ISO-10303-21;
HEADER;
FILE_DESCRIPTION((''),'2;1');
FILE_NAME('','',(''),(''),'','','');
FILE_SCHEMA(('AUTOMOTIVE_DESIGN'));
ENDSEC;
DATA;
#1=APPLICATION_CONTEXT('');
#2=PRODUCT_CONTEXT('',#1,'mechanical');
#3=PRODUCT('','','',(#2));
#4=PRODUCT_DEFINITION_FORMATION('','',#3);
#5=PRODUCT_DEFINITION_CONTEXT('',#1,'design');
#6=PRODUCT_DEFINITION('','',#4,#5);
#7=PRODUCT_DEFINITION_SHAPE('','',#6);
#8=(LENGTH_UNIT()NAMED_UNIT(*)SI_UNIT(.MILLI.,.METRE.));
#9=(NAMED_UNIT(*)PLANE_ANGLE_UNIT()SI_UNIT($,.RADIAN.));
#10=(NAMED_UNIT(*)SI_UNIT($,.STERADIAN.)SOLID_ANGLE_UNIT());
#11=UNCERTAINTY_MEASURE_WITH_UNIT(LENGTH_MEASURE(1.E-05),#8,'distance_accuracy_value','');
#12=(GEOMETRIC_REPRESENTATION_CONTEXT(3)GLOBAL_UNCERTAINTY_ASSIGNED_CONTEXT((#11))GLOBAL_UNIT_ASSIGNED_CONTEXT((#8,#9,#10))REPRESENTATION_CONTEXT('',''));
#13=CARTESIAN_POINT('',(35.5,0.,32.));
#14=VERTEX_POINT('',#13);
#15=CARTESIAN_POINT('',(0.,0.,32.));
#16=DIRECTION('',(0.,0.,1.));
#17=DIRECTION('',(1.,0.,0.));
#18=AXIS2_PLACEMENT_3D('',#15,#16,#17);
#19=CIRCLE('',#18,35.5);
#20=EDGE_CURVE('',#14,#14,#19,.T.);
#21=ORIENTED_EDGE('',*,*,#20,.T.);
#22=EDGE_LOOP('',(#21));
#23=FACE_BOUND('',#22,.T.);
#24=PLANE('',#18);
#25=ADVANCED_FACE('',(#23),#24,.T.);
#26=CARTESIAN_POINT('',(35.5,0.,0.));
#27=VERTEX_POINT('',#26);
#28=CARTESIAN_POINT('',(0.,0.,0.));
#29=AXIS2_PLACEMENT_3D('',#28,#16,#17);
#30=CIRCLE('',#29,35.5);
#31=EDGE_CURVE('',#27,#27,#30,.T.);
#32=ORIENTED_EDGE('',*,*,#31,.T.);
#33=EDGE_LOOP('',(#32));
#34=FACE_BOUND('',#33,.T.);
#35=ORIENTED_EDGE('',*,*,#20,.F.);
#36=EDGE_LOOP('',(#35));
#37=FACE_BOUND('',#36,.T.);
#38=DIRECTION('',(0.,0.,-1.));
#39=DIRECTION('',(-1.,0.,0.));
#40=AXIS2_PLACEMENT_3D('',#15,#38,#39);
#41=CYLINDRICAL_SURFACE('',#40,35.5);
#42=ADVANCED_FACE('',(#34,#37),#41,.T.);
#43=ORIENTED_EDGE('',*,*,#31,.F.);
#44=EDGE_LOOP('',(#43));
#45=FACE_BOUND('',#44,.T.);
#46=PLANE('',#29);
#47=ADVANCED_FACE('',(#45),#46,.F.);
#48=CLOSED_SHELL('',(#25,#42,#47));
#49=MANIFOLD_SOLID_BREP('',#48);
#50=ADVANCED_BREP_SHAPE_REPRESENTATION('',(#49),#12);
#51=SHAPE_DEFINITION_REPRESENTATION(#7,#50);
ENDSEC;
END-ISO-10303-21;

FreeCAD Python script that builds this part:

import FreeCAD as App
import Part
import Sketcher
Q = App.Units.Quantity

doc = App.newDocument("Part")
body = doc.addObject("PartDesign::Body", "Body")

sketch1 = body.newObject("Sketcher::SketchObject", "Sketch")
sketch1.AttachmentSupport = (doc.getObject("XY_Plane"), [""])
sketch1.MapMode = "FlatFace"
sketch1.addGeometry(Part.Circle(App.Vector(0, 0, 0), App.Vector(0, 0, 1), 35.5), False)
sketch1.addConstraint([
    Sketcher.Constraint("Coincident", 0, 3, -1, 1),
    Sketcher.Constraint("Diameter", 0, Q("71 mm")),
])
pad1 = body.newObject("PartDesign::Pad", "Pad")
pad1.Profile = sketch1
pad1.Length = 32

doc.recompute()
